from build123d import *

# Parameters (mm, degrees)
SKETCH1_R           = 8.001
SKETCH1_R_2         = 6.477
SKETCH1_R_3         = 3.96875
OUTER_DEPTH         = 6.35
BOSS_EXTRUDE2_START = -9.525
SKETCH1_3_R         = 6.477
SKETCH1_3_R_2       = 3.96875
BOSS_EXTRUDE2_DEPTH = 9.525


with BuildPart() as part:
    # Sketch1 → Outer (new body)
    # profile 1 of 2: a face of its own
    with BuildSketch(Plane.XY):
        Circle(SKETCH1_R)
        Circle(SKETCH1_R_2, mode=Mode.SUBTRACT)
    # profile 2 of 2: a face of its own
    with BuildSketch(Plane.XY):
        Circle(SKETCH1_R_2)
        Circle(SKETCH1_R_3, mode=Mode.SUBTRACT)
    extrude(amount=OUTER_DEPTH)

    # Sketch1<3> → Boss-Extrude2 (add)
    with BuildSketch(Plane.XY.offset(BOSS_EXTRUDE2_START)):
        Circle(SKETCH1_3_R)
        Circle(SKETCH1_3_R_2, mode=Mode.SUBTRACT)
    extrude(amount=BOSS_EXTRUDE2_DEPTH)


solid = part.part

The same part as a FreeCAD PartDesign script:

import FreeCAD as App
import Part
import Sketcher

V = App.Vector
Q = App.Units.Quantity

doc = App.newDocument("Part")
body = doc.addObject("PartDesign::Body", "Body")

# Sketch on XY plane
sketch1 = body.newObject("Sketcher::SketchObject", "Sketch")
sketch1.AttachmentSupport = (doc.getObject("XY_Plane"), [""])
sketch1.MapMode = "FlatFace"
sketch1.addGeometry(Part.Circle(V(0, 0, 0), V(0, 0, 1), 8), False)
sketch1.addGeometry(Part.Circle(V(0, 0, 0), V(0, 0, 1), 4), False)
sketch1.addConstraint(Sketcher.Constraint("Coincident", 0, 3, -1, 1))
sketch1.addConstraint(Sketcher.Constraint("Coincident", 1, 3, -1, 1))
sketch1.addConstraint(Sketcher.Constraint("Diameter", 0, Q("0.63 in")))
sketch1.addConstraint(Sketcher.Constraint("Diameter", 1, Q("0.3125 in")))
pad1 = body.newObject("PartDesign::Pad", "Pad")
pad1.Profile = sketch1
pad1.Length = Q("0.25 in")

# Sketch on XY plane
sketch2 = body.newObject("Sketcher::SketchObject", "Sketch001")
sketch2.AttachmentSupport = (doc.getObject("XY_Plane"), [""])
sketch2.MapMode = "FlatFace"
sketch2.AttachmentOffset = App.Placement(V(0, 0, -0.375 * 25.4), App.Rotation())
sketch2.addGeometry(Part.Circle(V(0, 0, 0), V(0, 0, 1), 6.5), False)
sketch2.addGeometry(Part.Circle(V(0, 0, 0), V(0, 0, 1), 4), False)
sketch2.addConstraint(Sketcher.Constraint("Coincident", 0, 3, -1, 1))
sketch2.addConstraint(Sketcher.Constraint("Coincident", 1, 3, -1, 1))
sketch2.addConstraint(Sketcher.Constraint("Diameter", 0, Q("0.51 in")))
sketch2.addConstraint(Sketcher.Constraint("Diameter", 1, Q("0.3125 in")))
pad2 = body.newObject("PartDesign::Pad", "Pad001")
pad2.Profile = sketch2
pad2.Length = Q("0.375 in")

doc.recompute()
